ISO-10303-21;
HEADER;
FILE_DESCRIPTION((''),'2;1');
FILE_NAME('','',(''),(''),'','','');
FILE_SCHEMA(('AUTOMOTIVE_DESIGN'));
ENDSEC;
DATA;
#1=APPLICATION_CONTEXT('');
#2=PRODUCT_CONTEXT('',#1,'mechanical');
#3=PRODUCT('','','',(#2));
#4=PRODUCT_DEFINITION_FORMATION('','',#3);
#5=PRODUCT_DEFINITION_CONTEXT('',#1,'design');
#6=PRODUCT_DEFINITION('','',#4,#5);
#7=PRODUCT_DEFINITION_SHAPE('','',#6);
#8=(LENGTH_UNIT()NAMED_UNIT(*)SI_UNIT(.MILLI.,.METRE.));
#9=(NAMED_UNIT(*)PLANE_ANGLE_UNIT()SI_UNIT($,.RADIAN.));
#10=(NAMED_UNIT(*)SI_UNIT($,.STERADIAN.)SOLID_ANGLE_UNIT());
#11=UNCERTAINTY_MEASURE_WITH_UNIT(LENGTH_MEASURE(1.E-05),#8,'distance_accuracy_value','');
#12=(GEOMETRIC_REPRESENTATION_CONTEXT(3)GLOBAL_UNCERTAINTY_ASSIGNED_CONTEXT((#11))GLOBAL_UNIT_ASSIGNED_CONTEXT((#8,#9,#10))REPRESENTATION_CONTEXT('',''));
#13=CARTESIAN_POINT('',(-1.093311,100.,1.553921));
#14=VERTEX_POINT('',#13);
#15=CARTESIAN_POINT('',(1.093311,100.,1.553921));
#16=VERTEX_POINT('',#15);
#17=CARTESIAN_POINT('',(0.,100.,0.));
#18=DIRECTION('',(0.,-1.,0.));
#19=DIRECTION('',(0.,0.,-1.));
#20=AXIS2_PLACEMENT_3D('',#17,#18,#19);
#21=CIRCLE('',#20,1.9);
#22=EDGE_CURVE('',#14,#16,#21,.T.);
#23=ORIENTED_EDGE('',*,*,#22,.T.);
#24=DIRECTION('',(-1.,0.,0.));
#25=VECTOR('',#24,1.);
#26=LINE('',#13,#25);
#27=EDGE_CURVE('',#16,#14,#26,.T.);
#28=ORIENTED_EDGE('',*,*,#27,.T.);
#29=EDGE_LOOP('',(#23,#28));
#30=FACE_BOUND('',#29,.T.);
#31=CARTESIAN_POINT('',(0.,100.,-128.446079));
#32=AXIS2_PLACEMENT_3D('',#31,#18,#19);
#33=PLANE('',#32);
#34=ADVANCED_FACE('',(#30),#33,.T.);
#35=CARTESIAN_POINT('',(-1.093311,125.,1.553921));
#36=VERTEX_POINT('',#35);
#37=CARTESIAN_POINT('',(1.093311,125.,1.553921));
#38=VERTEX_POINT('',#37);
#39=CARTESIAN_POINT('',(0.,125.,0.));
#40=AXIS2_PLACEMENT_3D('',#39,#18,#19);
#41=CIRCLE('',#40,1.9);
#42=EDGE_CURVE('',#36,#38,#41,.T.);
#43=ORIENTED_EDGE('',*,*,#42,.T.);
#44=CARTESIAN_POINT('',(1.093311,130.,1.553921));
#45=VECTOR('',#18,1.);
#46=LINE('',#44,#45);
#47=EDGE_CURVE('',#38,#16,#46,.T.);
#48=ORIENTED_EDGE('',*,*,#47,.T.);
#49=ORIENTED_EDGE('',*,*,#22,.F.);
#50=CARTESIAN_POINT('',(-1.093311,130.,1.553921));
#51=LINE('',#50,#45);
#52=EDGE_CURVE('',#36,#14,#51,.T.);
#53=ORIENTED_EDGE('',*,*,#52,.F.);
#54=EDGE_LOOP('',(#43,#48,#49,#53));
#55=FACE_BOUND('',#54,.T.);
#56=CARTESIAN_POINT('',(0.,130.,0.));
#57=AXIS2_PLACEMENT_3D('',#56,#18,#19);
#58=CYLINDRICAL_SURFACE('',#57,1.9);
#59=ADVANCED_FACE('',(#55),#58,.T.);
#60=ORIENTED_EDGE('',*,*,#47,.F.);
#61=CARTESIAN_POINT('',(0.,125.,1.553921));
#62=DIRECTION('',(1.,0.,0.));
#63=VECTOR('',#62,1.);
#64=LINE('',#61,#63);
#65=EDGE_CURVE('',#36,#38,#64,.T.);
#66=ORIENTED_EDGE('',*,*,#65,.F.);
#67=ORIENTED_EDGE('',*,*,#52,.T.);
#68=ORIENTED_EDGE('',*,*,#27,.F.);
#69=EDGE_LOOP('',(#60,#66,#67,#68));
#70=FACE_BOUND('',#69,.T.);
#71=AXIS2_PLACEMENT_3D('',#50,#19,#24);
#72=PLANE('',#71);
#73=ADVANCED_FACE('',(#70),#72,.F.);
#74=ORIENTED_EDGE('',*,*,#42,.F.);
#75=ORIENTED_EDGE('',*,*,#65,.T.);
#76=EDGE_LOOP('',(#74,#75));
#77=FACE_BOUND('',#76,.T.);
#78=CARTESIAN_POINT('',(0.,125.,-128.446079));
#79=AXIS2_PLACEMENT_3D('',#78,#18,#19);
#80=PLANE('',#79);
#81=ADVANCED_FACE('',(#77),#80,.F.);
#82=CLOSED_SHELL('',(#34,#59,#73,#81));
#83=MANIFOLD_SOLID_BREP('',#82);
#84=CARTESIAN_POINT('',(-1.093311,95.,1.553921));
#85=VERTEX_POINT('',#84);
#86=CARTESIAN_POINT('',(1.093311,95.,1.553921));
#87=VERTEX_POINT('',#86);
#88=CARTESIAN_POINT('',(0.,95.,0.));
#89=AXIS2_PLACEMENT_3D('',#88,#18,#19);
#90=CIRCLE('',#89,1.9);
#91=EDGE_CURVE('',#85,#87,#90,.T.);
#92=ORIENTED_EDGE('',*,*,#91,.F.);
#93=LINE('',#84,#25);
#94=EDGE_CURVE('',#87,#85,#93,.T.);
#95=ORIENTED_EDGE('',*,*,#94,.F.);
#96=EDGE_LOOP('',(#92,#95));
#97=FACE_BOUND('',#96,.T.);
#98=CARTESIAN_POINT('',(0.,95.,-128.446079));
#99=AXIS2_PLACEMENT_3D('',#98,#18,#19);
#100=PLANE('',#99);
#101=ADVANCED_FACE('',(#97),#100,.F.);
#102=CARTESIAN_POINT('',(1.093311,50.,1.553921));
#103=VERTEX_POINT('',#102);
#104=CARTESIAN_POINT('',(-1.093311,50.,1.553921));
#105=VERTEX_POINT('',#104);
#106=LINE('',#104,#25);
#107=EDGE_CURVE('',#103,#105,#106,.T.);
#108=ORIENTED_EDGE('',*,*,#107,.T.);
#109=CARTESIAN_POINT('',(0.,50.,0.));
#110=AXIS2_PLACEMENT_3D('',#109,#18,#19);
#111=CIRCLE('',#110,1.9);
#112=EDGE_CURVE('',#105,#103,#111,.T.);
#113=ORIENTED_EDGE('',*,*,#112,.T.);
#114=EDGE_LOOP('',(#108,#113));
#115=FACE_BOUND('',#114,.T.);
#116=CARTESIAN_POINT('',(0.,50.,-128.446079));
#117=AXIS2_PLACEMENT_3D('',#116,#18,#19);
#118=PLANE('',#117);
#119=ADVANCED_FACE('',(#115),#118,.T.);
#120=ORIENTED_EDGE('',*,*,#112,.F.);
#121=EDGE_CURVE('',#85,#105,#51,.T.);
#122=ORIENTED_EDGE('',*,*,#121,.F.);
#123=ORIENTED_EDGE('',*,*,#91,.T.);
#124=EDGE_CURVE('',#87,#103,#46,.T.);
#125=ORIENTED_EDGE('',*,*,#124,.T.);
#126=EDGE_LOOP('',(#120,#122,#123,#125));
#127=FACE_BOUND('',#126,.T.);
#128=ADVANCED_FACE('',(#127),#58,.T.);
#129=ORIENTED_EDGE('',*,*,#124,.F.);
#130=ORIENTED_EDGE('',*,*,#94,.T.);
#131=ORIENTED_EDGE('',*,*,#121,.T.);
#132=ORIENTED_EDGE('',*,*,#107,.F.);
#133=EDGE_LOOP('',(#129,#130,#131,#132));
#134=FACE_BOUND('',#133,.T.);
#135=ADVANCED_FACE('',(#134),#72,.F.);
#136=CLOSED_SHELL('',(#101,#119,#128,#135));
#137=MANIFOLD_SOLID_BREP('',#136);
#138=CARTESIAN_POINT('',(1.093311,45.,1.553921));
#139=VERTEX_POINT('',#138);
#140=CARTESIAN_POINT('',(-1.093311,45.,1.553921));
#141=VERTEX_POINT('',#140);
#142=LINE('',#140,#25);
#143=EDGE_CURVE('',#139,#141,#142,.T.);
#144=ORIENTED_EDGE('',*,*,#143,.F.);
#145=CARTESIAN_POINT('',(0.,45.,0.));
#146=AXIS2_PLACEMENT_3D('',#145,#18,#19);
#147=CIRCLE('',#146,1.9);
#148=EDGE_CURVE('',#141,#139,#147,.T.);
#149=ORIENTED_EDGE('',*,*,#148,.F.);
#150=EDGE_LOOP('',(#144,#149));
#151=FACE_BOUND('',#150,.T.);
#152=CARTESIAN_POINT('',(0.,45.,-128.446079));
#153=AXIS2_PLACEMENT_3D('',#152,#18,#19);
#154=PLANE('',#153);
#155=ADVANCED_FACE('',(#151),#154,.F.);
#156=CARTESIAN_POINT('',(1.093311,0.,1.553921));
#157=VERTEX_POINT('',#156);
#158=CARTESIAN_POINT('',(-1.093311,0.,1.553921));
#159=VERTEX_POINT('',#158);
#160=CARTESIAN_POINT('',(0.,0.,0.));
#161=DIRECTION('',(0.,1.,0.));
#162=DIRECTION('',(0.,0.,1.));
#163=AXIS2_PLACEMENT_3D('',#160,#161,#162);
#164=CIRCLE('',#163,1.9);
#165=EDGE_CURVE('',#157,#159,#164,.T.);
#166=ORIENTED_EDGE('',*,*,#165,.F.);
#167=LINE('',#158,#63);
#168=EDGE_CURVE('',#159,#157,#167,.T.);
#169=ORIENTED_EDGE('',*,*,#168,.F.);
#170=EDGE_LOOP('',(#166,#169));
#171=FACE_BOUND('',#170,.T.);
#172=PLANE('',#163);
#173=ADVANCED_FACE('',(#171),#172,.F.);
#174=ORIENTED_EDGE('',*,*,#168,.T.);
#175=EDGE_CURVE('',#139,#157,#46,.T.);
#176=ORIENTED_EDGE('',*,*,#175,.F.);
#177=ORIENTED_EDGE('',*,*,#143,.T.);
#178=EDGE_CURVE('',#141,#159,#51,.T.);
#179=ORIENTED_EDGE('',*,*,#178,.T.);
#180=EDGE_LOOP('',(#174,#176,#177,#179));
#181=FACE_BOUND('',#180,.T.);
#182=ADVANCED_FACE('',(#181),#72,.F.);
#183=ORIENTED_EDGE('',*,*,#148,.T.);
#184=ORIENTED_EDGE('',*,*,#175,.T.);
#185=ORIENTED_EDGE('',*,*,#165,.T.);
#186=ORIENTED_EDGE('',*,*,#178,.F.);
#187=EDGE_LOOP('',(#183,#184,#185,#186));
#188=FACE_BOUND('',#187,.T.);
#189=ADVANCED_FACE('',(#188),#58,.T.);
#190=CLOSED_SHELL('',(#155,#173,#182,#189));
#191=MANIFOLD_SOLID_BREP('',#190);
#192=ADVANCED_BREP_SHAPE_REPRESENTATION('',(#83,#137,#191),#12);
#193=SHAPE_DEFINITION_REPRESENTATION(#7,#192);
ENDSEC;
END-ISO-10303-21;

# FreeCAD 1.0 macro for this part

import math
import FreeCAD as App
import Part
import Sketcher

doc = App.newDocument("Part")
body = doc.addObject("PartDesign::Body", "Body")
body.AllowCompound = True

# Sketch on XZ plane
sketch1 = body.newObject("Sketcher::SketchObject", "Sketch")
sketch1.AttachmentSupport = (doc.getObject("XZ_Plane"), [""])
sketch1.MapMode = "FlatFace"
sketch1.addGeometry([
    Part.LineSegment(App.Vector(-1.1, 1.6, 0), App.Vector(1.1, 1.6, 0)),
    Part.ArcOfCircle(Part.Circle(App.Vector(0, 0, 0), App.Vector(0, 0, 1), 1.9), math.radians(125), math.radians(415)),
], False)
sketch1.addConstraint([
    Sketcher.Constraint("Coincident", 0, 1, 1, 1),
    Sketcher.Constraint("Coincident", 1, 2, 0, 2),
    Sketcher.Constraint("Horizontal", 0),
    Sketcher.Constraint("Coincident", 1, 3, -1, 1),
    Sketcher.Constraint("Radius", 1, 1.9),
    Sketcher.Constraint("DistanceX", 0, 1, 0, 2, 2.186621),
])
pad1 = body.newObject("PartDesign::Pad", "Pad")
pad1.Profile = sketch1
pad1.Length = 130
pad1.Reversed = True

# Sketch on XY plane
sketch2 = body.newObject("Sketcher::SketchObject", "Sketch001")
sketch2.AttachmentSupport = (doc.getObject("XY_Plane"), [""])
sketch2.MapMode = "FlatFace"
sketch2.AttachmentOffset = App.Placement(App.Vector(0, 0, 1.553921), App.Rotation())
sketch2.addGeometry([
    Part.LineSegment(App.Vector(11, 125, 0), App.Vector(11, 130, 0)),  # 0
    Part.LineSegment(App.Vector(11, 130, 0), App.Vector(-6, 130, 0)),  # 1
    Part.LineSegment(App.Vector(-6, 130, 0), App.Vector(-6, 125, 0)),  # 2
    Part.LineSegment(App.Vector(-6, 125, 0), App.Vector(11, 125, 0)),  # 3
    Part.LineSegment(App.Vector(-10, 100, 0), App.Vector(-10, 95, 0)),  # 4
    Part.LineSegment(App.Vector(-10, 95, 0), App.Vector(17, 95, 0)),  # 5
    Part.LineSegment(App.Vector(17, 95, 0), App.Vector(17, 100, 0)),  # 6
    Part.LineSegment(App.Vector(17, 100, 0), App.Vector(-10, 100, 0)),  # 7
    Part.LineSegment(App.Vector(-8, 50, 0), App.Vector(-8, 45, 0)),  # 8
    Part.LineSegment(App.Vector(-8, 45, 0), App.Vector(5, 45, 0)),  # 9
    Part.LineSegment(App.Vector(5, 45, 0), App.Vector(5, 50, 0)),  # 10
    Part.LineSegment(App.Vector(5, 50, 0), App.Vector(-8, 50, 0)),  # 11
], False)
sketch2.addConstraint([
    Sketcher.Constraint("Coincident", 0, 2, 1, 1),
    Sketcher.Constraint("Coincident", 1, 2, 2, 1),
    Sketcher.Constraint("Coincident", 2, 2, 3, 1),
    Sketcher.Constraint("Coincident", 3, 2, 0, 1),
    Sketcher.Constraint("Coincident", 4, 2, 5, 1),
    Sketcher.Constraint("Coincident", 5, 2, 6, 1),
    Sketcher.Constraint("Coincident", 6, 2, 7, 1),
    Sketcher.Constraint("Coincident", 7, 2, 4, 1),
    Sketcher.Constraint("Coincident", 8, 2, 9, 1),
    Sketcher.Constraint("Coincident", 9, 2, 10, 1),
    Sketcher.Constraint("Coincident", 10, 2, 11, 1),
    Sketcher.Constraint("Coincident", 11, 2, 8, 1),
    Sketcher.Constraint("Vertical", 0),
    Sketcher.Constraint("Horizontal", 1),
    Sketcher.Constraint("Vertical", 2),
    Sketcher.Constraint("Horizontal", 3),
    Sketcher.Constraint("Vertical", 4),
    Sketcher.Constraint("Horizontal", 5),
    Sketcher.Constraint("Vertical", 6),
    Sketcher.Constraint("Horizontal", 7),
    Sketcher.Constraint("Vertical", 8),
    Sketcher.Constraint("Horizontal", 9),
    Sketcher.Constraint("Vertical", 10),
    Sketcher.Constraint("Horizontal", 11),
    Sketcher.Constraint("Equal", 2, 4),
    Sketcher.Constraint("Equal", 6, 8),
    Sketcher.Constraint("DistanceY", 0, 1, 0, 2, 5.0),
    Sketcher.Constraint("DistanceY", -1, 1, 0, 2, 130.0),
    Sketcher.Constraint("DistanceY", -1, 1, 4, 2, 95.0),
    Sketcher.Constraint("DistanceY", -1, 1, 8, 2, 45.0),
    Sketcher.Constraint("DistanceX", 5, 1, 5, 2, 26.82828),
    Sketcher.Constraint("DistanceX", 1, 2, 1, 1, 17.612948),
    Sketcher.Constraint("DistanceX", 9, 1, 9, 2, 12.880196),
    Sketcher.Constraint("DistanceX", -1, 1, 0, 2, 11.257751),
    Sketcher.Constraint("DistanceX", -1, 1, 9, 2, 4.637009),
    Sketcher.Constraint("DistanceX", 4, 2, 2, 2, 3.19774),
])
pocket1 = body.newObject("PartDesign::Pocket", "Pocket")
pocket1.Profile = sketch2
pocket1.Length = 130

doc.recompute()
